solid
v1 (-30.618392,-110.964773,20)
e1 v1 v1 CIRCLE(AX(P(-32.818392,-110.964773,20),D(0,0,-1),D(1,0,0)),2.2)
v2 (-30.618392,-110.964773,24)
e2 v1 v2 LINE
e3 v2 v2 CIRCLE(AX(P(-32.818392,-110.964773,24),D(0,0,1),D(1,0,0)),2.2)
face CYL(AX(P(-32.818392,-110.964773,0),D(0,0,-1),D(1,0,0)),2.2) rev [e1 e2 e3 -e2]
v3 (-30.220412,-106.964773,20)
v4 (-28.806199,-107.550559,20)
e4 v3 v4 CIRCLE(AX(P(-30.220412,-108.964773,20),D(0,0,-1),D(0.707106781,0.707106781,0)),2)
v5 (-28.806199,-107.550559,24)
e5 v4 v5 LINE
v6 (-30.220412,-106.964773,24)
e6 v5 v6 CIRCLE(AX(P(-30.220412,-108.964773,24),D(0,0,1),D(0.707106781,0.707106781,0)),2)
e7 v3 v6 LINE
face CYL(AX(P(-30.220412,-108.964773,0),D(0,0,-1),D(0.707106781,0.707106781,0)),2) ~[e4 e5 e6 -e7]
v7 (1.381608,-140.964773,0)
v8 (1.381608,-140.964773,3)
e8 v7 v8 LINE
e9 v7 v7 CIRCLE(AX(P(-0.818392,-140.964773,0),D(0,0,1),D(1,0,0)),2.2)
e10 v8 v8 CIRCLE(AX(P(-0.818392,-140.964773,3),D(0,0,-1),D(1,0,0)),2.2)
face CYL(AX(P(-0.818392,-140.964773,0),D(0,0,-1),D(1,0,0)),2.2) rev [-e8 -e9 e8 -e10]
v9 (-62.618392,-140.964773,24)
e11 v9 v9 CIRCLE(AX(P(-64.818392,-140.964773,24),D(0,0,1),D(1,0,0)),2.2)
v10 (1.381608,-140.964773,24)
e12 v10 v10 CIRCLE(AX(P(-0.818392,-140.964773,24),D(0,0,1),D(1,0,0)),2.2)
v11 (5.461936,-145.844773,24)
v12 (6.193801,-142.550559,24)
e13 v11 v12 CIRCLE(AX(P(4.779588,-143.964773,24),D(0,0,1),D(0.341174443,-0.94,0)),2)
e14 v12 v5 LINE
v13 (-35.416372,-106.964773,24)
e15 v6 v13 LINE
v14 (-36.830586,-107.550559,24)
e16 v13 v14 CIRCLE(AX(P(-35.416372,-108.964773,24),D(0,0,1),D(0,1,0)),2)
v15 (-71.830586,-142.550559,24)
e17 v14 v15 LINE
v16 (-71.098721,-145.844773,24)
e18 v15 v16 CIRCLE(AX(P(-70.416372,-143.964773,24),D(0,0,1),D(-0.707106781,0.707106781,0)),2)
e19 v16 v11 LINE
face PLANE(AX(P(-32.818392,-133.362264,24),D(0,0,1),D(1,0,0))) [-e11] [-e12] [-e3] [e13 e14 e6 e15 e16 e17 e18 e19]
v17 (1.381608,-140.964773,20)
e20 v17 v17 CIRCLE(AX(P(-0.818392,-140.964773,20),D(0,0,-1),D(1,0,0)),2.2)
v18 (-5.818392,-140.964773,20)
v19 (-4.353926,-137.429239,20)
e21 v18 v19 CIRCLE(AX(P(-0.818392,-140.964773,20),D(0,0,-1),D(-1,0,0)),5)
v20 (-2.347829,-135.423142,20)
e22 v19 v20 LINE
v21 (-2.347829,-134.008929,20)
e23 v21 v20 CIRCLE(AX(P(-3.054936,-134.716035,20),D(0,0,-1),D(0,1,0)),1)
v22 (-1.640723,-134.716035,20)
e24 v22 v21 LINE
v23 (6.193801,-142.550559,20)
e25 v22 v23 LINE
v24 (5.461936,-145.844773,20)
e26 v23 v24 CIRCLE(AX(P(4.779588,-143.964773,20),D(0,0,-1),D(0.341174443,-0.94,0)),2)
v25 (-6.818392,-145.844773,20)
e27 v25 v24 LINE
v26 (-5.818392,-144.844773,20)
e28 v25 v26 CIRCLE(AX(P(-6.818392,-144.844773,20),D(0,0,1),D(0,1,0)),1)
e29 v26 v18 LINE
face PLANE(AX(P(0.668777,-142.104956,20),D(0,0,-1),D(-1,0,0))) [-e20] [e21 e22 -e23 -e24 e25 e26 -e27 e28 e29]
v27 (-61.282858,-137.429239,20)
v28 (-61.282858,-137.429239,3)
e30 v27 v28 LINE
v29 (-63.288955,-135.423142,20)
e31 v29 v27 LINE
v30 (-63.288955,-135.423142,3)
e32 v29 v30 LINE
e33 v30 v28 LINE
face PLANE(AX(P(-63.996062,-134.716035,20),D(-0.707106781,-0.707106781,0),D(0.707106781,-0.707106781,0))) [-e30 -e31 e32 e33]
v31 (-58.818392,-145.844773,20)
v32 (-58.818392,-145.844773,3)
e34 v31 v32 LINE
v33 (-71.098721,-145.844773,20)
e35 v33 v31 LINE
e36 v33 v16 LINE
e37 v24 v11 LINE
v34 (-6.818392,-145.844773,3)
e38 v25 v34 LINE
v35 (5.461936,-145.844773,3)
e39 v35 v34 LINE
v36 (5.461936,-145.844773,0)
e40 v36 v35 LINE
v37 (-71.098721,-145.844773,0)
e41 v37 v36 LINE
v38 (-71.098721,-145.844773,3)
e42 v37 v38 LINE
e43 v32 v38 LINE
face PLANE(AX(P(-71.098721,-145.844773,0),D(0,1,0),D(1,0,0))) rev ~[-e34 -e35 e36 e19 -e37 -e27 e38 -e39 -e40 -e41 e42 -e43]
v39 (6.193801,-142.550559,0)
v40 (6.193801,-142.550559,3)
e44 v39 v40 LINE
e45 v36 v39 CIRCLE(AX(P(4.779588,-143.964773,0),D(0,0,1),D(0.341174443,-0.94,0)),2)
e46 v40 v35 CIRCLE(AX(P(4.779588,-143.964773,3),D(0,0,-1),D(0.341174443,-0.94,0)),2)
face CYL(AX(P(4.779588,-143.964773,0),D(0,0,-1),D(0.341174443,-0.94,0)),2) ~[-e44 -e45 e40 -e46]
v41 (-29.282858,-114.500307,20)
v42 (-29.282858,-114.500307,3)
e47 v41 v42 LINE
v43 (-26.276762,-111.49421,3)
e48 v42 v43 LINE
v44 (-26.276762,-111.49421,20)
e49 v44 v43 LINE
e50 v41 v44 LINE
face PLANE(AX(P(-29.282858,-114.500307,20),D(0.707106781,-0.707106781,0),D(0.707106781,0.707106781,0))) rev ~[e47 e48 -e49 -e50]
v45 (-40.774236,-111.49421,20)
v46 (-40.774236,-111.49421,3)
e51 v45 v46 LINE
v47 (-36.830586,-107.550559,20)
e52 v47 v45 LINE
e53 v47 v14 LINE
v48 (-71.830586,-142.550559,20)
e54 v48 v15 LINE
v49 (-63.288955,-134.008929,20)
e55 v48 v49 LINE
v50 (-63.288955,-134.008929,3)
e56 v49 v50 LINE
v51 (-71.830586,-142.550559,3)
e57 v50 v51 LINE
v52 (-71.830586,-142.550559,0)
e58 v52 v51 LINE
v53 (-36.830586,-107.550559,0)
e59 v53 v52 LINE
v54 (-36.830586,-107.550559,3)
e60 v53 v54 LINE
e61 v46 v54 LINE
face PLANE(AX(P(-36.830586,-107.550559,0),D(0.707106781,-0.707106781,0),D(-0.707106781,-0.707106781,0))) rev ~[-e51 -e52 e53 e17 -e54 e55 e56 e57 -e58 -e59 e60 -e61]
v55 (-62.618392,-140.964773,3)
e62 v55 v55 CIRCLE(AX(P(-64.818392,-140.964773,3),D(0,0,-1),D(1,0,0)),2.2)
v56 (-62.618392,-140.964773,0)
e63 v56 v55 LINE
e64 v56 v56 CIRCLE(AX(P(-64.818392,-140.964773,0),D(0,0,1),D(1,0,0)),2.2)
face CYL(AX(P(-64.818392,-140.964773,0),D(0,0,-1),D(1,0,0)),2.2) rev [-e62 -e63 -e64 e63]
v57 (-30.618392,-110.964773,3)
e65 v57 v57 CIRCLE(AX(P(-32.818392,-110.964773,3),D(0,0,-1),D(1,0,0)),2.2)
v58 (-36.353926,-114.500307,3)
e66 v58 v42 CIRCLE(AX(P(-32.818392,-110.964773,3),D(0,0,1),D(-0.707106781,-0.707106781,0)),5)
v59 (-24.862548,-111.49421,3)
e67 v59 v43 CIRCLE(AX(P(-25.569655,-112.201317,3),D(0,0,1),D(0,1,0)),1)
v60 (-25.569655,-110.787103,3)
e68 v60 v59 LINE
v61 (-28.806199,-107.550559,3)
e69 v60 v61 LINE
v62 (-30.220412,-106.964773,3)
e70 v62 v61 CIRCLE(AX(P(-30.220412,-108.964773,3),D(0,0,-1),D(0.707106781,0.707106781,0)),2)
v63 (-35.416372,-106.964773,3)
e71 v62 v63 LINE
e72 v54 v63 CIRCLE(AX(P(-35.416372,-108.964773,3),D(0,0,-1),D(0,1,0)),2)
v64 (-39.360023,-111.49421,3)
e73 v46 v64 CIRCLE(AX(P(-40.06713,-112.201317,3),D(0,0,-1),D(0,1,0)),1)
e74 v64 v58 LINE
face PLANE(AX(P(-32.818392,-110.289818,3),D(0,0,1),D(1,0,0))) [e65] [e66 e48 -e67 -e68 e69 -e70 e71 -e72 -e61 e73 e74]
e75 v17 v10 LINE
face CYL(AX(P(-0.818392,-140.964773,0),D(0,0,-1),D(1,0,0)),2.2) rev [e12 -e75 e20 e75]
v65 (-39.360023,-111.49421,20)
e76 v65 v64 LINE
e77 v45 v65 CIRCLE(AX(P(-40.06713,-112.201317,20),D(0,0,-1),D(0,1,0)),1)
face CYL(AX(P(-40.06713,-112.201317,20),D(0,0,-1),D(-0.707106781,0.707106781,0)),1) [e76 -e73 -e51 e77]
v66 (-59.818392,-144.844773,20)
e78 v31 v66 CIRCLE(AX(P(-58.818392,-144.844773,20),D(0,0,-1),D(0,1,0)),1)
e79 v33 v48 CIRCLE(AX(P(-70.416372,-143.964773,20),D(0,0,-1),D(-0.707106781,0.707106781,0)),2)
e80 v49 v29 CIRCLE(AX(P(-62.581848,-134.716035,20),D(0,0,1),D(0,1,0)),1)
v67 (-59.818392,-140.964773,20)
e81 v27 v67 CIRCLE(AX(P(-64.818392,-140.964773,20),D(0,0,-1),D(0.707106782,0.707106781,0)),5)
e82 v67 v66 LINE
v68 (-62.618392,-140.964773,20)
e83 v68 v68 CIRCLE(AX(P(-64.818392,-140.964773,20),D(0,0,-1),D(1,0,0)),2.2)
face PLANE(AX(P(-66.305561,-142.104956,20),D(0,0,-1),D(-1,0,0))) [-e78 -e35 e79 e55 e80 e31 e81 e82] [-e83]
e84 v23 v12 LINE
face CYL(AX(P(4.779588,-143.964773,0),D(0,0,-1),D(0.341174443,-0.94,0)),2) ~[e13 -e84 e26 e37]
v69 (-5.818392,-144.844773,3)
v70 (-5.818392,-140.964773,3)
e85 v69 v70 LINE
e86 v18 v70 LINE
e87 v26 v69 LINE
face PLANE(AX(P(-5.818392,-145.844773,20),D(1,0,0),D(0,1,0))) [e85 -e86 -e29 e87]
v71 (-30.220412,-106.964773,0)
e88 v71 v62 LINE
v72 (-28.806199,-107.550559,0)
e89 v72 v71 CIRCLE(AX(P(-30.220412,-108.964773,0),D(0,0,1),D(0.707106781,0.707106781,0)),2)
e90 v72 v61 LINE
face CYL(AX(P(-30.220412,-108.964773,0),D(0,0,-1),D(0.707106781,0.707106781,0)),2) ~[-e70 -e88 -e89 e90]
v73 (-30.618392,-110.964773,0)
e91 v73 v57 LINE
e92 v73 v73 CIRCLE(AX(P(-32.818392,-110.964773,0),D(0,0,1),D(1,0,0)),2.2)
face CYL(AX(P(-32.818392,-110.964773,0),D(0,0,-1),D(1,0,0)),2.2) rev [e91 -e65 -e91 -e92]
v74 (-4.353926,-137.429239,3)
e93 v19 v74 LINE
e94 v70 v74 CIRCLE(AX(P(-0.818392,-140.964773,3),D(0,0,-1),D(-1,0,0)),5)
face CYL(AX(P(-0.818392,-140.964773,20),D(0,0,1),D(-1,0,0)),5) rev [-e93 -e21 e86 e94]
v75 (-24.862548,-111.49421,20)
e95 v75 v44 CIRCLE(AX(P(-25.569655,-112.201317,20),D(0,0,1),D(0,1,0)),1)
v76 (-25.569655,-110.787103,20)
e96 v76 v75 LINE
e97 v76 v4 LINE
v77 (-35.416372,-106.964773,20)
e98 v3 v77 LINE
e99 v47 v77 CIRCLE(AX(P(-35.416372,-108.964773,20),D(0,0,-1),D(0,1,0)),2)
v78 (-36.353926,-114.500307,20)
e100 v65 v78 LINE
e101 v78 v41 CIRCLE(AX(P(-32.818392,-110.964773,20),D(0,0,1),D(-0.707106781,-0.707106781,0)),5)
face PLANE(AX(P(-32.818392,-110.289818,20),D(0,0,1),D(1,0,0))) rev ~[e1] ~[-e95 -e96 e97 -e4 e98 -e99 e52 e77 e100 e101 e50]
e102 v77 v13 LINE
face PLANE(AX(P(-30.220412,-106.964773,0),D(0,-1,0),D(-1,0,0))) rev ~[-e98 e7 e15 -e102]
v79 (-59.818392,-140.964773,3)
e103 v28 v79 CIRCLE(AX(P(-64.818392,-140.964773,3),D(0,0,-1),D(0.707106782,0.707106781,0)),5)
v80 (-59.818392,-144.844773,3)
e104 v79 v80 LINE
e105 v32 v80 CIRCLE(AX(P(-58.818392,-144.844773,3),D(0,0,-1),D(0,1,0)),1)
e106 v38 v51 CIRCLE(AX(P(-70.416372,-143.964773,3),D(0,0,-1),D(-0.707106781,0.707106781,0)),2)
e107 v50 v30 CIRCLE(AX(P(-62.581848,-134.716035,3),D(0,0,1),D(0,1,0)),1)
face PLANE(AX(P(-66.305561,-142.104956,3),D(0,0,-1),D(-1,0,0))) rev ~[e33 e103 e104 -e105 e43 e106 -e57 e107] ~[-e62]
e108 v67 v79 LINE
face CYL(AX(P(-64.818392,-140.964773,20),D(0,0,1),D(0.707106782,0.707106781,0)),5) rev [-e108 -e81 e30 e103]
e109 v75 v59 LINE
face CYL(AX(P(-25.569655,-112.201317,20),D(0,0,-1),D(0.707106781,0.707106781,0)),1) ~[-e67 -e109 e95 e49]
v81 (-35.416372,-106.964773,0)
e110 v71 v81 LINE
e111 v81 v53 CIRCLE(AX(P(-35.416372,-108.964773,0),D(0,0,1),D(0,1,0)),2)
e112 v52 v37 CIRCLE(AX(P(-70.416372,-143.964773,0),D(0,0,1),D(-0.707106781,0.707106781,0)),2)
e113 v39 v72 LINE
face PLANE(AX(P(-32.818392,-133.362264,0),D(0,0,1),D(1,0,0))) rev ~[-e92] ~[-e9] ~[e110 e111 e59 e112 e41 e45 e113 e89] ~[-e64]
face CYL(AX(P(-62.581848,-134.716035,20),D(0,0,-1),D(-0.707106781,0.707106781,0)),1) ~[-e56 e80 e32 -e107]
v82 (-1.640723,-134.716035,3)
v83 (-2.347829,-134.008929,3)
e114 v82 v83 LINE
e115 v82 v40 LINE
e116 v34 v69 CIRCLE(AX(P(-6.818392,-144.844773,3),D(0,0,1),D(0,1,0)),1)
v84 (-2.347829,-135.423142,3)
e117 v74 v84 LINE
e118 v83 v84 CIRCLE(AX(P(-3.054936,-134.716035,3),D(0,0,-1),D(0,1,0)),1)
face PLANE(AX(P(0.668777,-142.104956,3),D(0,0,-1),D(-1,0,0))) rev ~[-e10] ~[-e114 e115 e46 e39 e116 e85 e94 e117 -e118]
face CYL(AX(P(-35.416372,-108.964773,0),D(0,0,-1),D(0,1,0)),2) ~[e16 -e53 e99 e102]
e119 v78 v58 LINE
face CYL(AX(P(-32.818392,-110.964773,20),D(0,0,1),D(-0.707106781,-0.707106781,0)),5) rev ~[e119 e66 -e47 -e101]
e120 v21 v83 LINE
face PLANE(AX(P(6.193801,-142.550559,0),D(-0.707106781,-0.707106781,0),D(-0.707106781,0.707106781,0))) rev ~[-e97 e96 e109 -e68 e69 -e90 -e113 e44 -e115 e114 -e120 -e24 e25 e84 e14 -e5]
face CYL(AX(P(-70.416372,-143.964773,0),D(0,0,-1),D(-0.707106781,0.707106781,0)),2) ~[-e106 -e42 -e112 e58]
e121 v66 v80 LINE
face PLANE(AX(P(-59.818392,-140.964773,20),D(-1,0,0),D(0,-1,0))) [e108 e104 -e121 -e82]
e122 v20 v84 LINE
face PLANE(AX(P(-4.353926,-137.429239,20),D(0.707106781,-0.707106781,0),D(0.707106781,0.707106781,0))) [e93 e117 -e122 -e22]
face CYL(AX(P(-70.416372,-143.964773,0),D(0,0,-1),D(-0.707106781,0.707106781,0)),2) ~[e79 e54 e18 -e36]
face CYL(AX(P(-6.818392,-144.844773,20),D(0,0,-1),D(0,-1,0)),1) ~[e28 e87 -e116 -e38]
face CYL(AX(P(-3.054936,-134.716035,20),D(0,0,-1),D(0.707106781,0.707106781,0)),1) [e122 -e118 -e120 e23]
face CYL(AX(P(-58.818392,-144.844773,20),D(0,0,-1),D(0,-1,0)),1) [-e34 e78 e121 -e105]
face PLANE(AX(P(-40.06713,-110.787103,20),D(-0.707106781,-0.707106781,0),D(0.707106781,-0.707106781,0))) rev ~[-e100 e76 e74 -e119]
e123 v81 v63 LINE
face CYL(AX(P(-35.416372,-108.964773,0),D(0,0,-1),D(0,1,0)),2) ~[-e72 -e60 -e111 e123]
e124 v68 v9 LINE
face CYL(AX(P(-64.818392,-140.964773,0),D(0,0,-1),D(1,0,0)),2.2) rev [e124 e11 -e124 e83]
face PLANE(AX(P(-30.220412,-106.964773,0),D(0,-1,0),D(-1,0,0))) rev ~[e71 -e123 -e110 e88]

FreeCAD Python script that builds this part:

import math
import FreeCAD as App
import Part
import Sketcher
from FreeCAD import Vector


def edges_at(feature, points):
    """Names of the edges that pass closest to the given points."""
    edges = feature.Shape.Edges
    near = lambda p: min(range(len(edges)), key=lambda i: edges[i].distToShape(Part.Vertex(*p))[0])
    return sorted({f"Edge{near(p) + 1}" for p in points})

doc = App.newDocument("Part")
body = doc.addObject("PartDesign::Body", "Body")

# Sketch on XY plane
sketch1 = doc.addObject("Sketcher::SketchObject", "Sketch")
body.addObject(sketch1)
sketch1.AttachmentSupport = (doc.XY_Plane, [""])
sketch1.MapMode = "FlatFace"
sketch1.addGeometry([
    Part.ArcOfCircle(Part.Circle(Vector(-70.4, -144, 0), Vector(0, 0, 1), 2), math.radians(135), math.radians(250)),  # 0
    Part.LineSegment(Vector(-71.1, -145.8, 0), Vector(5.5, -145.8, 0)),  # 1
    Part.ArcOfCircle(Part.Circle(Vector(4.8, -144, 0), Vector(0, 0, 1), 2), math.radians(-70), math.radians(45)),  # 2
    Part.LineSegment(Vector(6.2, -142.6, 0), Vector(-28.8, -107.6, 0)),  # 3
    Part.ArcOfCircle(Part.Circle(Vector(-30.2, -109, 0), Vector(0, 0, 1), 2), math.radians(45), math.radians(90)),  # 4
    Part.LineSegment(Vector(-30.2, -107, 0), Vector(-35.4, -107, 0)),  # 5
    Part.ArcOfCircle(Part.Circle(Vector(-35.4, -109, 0), Vector(0, 0, 1), 2), math.radians(90), math.radians(135)),  # 6
    Part.LineSegment(Vector(-36.8, -107.6, 0), Vector(-71.8, -142.6, 0)),  # 7
    Part.Circle(Vector(-64.8, -141, 0), Vector(0, 0, 1), 2.2),  # 8
    Part.Circle(Vector(-0.8, -141, 0), Vector(0, 0, 1), 2.2),  # 9
    Part.Circle(Vector(-32.8, -111, 0), Vector(0, 0, 1), 2.2),  # 10
], False)
sketch1.addConstraint([
    Sketcher.Constraint("Coincident", 0, 2, 1, 1),
    Sketcher.Constraint("Coincident", 1, 2, 2, 1),
    Sketcher.Constraint("Tangent", 2, 2, 3, 1),
    Sketcher.Constraint("Tangent", 3, 2, 4, 1),
    Sketcher.Constraint("Tangent", 4, 2, 5, 1),
    Sketcher.Constraint("Tangent", 5, 2, 6, 1),
    Sketcher.Constraint("Tangent", 6, 2, 7, 1),
    Sketcher.Constraint("Tangent", 7, 2, 0, 1),
    Sketcher.Constraint("Horizontal", 1),
    Sketcher.Constraint("Horizontal", 5),
    Sketcher.Constraint("Equal", 0, 2),
    Sketcher.Constraint("Equal", 2, 4),
    Sketcher.Constraint("Equal", 4, 6),
    Sketcher.Constraint("Equal", 8, 9),
    Sketcher.Constraint("Equal", 9, 10),
    Sketcher.Constraint("Perpendicular", 3, 7),
    Sketcher.Constraint("Horizontal", 0, 3, 2, 3),
    Sketcher.Constraint("Horizontal", 8, 3, 9, 3),
    Sketcher.Constraint("Horizontal", 3, 2, 6, 2),
    Sketcher.Constraint("Radius", 0, 2.0),
    Sketcher.Constraint("Diameter", 8, 4.4),
    Sketcher.Constraint("DistanceX", 4, 3, 2, 3, 35.0),
    Sketcher.Constraint("DistanceY", 0, 3, 8, 3, 3.0),
    Sketcher.Constraint("DistanceX", 8, 3, 9, 3, 64.0),
    Sketcher.Constraint("DistanceY", 10, 3, 4, 3, 2.0),
    Sketcher.Constraint("DistanceX", 8, 3, 10, 3, 32.0),
    Sketcher.Constraint("DistanceY", 0, 2, 0, 3, 1.88),
    Sketcher.Constraint("DistanceX", 5, 2, 5, 1, 5.195959),
    Sketcher.Constraint("DistanceX", -1, 1, 2, 2, 6.193801),
    Sketcher.Constraint("DistanceY", 2, 2, -1, 1, 142.550559),
    Sketcher.Constraint("DistanceX", 0, 3, 8, 3, 5.59798),
])
pad1 = doc.addObject("PartDesign::Pad", "Pad")
body.addObject(pad1)
pad1.Profile = sketch1
pad1.Length = 24

# Sketch on XY plane
sketch2 = doc.addObject("Sketcher::SketchObject", "Sketch001")
body.addObject(sketch2)
sketch2.AttachmentSupport = (doc.XY_Plane, [""])
sketch2.MapMode = "FlatFace"
sketch2.AttachmentOffset = App.Placement(Vector(0, 0, 20), App.Rotation())
sketch2.addGeometry([
    Part.LineSegment(Vector(-40.1, -110.8, 0), Vector(-36.4, -114.5, 0)),  # 0
    Part.ArcOfCircle(Part.Circle(Vector(-32.8, -111, 0), Vector(0, 0, 1), 5), math.radians(-135), math.radians(-45)),  # 1
    Part.LineSegment(Vector(-29.3, -114.5, 0), Vector(-25.6, -110.8, 0)),  # 2
    Part.LineSegment(Vector(-25.6, -110.8, 0), Vector(-32.8, -103.5, 0)),  # 3
    Part.LineSegment(Vector(-32.8, -103.5, 0), Vector(-40.1, -110.8, 0)),  # 4
    Part.LineSegment(Vector(-61.3, -137.4, 0), Vector(-64, -134.7, 0)),  # 5
    Part.LineSegment(Vector(-64, -134.7, 0), Vector(-75.1, -145.8, 0)),  # 6
    Part.LineSegment(Vector(-75.1, -145.8, 0), Vector(-59.8, -145.8, 0)),  # 7
    Part.LineSegment(Vector(-59.8, -145.8, 0), Vector(-59.8, -141, 0)),  # 8
    Part.ArcOfCircle(Part.Circle(Vector(-64.8, -141, 0), Vector(0, 0, 1), 5), math.radians(0), math.radians(45)),  # 9
    Part.LineSegment(Vector(-5.8, -145.8, 0), Vector(9.5, -145.8, 0)),  # 10
    Part.LineSegment(Vector(9.5, -145.8, 0), Vector(-1.6, -134.7, 0)),  # 11
    Part.LineSegment(Vector(-1.6, -134.7, 0), Vector(-4.4, -137.4, 0)),  # 12
    Part.ArcOfCircle(Part.Circle(Vector(-0.8, -141, 0), Vector(0, 0, 1), 5), math.radians(135), math.radians(180)),  # 13
    Part.LineSegment(Vector(-5.8, -141, 0), Vector(-5.8, -145.8, 0)),  # 14
], False)
sketch2.addConstraint([
    Sketcher.Constraint("Tangent", 0, 2, 1, 1),
    Sketcher.Constraint("Tangent", 1, 2, 2, 1),
    Sketcher.Constraint("Coincident", 2, 2, 3, 1),
    Sketcher.Constraint("Coincident", 3, 2, 4, 1),
    Sketcher.Constraint("Coincident", 4, 2, 0, 1),
    Sketcher.Constraint("Coincident", 5, 2, 6, 1),
    Sketcher.Constraint("Coincident", 6, 2, 7, 1),
    Sketcher.Constraint("Coincident", 7, 2, 8, 1),
    Sketcher.Constraint("Tangent", 8, 2, 9, 1),
    Sketcher.Constraint("Tangent", 9, 2, 5, 1),
    Sketcher.Constraint("Coincident", 10, 2, 11, 1),
    Sketcher.Constraint("Coincident", 11, 2, 12, 1),
    Sketcher.Constraint("Tangent", 12, 2, 13, 1),
    Sketcher.Constraint("Tangent", 13, 2, 14, 1),
    Sketcher.Constraint("Coincident", 14, 2, 10, 1),
    Sketcher.Constraint("Horizontal", 7),
    Sketcher.Constraint("Vertical", 8),
    Sketcher.Constraint("Horizontal", 10),
    Sketcher.Constraint("Vertical", 14),
    Sketcher.Constraint("Equal", 1, 9),
    Sketcher.Constraint("Equal", 9, 13),
    Sketcher.Constraint("Perpendicular", 0, 2),
    Sketcher.Constraint("Perpendicular", 2, 3),
    Sketcher.Constraint("Perpendicular", 3, 4),
    Sketcher.Constraint("Perpendicular", 4, 5),
    Sketcher.Constraint("Perpendicular", 5, 6),
    Sketcher.Constraint("Perpendicular", 6, 11),
    Sketcher.Constraint("Perpendicular", 11, 12),
    Sketcher.Constraint("Horizontal", 9, 3, 13, 3),
    Sketcher.Constraint("Horizontal", 0, 2, 1, 2),
    Sketcher.Constraint("Horizontal", 2, 2, 4, 2),
    Sketcher.Constraint("Horizontal", 7, 2, 10, 2),
    Sketcher.Constraint("Horizontal", 5, 2, 11, 2),
    Sketcher.Constraint("Radius", 1, 5.0),
    Sketcher.Constraint("DistanceX", 9, 3, 1, 3, 32.0),
    Sketcher.Constraint("DistanceY", 9, 3, 1, 3, 30.0),
    Sketcher.Constraint("DistanceX", 1, 3, 13, 3, 32.0),
    Sketcher.Constraint("DistanceY", 8, 1, 8, 2, 4.88),
    Sketcher.Constraint("DistanceX", 6, 2, -1, 1, 75.124799),
    Sketcher.Constraint("Distance", 5, 3.837049),
    Sketcher.Constraint("DistanceX", 4, 2, -1, 1, 40.06713),
    Sketcher.Constraint("DistanceY", 9, 2, -1, 1, 137.429239),
])
pocket1 = doc.addObject("PartDesign::Pocket", "Pocket")
body.addObject(pocket1)
pocket1.Profile = sketch2
pocket1.Length = 17
doc.recompute()

fillet = doc.addObject("PartDesign::Fillet", "Fillet")
body.addObject(fillet)
fillet.Base = (pocket1, edges_at(pocket1, [
    (-59.818, -145.845, 11.5),
    (-63.996, -134.716, 11.5),
    (-1.641, -134.716, 11.5),
    (-5.818, -145.845, 11.5),
    (-40.067, -110.787, 11.5),
    (-25.57, -110.787, 11.5),
]))
fillet.Radius = 1

doc.recompute()
